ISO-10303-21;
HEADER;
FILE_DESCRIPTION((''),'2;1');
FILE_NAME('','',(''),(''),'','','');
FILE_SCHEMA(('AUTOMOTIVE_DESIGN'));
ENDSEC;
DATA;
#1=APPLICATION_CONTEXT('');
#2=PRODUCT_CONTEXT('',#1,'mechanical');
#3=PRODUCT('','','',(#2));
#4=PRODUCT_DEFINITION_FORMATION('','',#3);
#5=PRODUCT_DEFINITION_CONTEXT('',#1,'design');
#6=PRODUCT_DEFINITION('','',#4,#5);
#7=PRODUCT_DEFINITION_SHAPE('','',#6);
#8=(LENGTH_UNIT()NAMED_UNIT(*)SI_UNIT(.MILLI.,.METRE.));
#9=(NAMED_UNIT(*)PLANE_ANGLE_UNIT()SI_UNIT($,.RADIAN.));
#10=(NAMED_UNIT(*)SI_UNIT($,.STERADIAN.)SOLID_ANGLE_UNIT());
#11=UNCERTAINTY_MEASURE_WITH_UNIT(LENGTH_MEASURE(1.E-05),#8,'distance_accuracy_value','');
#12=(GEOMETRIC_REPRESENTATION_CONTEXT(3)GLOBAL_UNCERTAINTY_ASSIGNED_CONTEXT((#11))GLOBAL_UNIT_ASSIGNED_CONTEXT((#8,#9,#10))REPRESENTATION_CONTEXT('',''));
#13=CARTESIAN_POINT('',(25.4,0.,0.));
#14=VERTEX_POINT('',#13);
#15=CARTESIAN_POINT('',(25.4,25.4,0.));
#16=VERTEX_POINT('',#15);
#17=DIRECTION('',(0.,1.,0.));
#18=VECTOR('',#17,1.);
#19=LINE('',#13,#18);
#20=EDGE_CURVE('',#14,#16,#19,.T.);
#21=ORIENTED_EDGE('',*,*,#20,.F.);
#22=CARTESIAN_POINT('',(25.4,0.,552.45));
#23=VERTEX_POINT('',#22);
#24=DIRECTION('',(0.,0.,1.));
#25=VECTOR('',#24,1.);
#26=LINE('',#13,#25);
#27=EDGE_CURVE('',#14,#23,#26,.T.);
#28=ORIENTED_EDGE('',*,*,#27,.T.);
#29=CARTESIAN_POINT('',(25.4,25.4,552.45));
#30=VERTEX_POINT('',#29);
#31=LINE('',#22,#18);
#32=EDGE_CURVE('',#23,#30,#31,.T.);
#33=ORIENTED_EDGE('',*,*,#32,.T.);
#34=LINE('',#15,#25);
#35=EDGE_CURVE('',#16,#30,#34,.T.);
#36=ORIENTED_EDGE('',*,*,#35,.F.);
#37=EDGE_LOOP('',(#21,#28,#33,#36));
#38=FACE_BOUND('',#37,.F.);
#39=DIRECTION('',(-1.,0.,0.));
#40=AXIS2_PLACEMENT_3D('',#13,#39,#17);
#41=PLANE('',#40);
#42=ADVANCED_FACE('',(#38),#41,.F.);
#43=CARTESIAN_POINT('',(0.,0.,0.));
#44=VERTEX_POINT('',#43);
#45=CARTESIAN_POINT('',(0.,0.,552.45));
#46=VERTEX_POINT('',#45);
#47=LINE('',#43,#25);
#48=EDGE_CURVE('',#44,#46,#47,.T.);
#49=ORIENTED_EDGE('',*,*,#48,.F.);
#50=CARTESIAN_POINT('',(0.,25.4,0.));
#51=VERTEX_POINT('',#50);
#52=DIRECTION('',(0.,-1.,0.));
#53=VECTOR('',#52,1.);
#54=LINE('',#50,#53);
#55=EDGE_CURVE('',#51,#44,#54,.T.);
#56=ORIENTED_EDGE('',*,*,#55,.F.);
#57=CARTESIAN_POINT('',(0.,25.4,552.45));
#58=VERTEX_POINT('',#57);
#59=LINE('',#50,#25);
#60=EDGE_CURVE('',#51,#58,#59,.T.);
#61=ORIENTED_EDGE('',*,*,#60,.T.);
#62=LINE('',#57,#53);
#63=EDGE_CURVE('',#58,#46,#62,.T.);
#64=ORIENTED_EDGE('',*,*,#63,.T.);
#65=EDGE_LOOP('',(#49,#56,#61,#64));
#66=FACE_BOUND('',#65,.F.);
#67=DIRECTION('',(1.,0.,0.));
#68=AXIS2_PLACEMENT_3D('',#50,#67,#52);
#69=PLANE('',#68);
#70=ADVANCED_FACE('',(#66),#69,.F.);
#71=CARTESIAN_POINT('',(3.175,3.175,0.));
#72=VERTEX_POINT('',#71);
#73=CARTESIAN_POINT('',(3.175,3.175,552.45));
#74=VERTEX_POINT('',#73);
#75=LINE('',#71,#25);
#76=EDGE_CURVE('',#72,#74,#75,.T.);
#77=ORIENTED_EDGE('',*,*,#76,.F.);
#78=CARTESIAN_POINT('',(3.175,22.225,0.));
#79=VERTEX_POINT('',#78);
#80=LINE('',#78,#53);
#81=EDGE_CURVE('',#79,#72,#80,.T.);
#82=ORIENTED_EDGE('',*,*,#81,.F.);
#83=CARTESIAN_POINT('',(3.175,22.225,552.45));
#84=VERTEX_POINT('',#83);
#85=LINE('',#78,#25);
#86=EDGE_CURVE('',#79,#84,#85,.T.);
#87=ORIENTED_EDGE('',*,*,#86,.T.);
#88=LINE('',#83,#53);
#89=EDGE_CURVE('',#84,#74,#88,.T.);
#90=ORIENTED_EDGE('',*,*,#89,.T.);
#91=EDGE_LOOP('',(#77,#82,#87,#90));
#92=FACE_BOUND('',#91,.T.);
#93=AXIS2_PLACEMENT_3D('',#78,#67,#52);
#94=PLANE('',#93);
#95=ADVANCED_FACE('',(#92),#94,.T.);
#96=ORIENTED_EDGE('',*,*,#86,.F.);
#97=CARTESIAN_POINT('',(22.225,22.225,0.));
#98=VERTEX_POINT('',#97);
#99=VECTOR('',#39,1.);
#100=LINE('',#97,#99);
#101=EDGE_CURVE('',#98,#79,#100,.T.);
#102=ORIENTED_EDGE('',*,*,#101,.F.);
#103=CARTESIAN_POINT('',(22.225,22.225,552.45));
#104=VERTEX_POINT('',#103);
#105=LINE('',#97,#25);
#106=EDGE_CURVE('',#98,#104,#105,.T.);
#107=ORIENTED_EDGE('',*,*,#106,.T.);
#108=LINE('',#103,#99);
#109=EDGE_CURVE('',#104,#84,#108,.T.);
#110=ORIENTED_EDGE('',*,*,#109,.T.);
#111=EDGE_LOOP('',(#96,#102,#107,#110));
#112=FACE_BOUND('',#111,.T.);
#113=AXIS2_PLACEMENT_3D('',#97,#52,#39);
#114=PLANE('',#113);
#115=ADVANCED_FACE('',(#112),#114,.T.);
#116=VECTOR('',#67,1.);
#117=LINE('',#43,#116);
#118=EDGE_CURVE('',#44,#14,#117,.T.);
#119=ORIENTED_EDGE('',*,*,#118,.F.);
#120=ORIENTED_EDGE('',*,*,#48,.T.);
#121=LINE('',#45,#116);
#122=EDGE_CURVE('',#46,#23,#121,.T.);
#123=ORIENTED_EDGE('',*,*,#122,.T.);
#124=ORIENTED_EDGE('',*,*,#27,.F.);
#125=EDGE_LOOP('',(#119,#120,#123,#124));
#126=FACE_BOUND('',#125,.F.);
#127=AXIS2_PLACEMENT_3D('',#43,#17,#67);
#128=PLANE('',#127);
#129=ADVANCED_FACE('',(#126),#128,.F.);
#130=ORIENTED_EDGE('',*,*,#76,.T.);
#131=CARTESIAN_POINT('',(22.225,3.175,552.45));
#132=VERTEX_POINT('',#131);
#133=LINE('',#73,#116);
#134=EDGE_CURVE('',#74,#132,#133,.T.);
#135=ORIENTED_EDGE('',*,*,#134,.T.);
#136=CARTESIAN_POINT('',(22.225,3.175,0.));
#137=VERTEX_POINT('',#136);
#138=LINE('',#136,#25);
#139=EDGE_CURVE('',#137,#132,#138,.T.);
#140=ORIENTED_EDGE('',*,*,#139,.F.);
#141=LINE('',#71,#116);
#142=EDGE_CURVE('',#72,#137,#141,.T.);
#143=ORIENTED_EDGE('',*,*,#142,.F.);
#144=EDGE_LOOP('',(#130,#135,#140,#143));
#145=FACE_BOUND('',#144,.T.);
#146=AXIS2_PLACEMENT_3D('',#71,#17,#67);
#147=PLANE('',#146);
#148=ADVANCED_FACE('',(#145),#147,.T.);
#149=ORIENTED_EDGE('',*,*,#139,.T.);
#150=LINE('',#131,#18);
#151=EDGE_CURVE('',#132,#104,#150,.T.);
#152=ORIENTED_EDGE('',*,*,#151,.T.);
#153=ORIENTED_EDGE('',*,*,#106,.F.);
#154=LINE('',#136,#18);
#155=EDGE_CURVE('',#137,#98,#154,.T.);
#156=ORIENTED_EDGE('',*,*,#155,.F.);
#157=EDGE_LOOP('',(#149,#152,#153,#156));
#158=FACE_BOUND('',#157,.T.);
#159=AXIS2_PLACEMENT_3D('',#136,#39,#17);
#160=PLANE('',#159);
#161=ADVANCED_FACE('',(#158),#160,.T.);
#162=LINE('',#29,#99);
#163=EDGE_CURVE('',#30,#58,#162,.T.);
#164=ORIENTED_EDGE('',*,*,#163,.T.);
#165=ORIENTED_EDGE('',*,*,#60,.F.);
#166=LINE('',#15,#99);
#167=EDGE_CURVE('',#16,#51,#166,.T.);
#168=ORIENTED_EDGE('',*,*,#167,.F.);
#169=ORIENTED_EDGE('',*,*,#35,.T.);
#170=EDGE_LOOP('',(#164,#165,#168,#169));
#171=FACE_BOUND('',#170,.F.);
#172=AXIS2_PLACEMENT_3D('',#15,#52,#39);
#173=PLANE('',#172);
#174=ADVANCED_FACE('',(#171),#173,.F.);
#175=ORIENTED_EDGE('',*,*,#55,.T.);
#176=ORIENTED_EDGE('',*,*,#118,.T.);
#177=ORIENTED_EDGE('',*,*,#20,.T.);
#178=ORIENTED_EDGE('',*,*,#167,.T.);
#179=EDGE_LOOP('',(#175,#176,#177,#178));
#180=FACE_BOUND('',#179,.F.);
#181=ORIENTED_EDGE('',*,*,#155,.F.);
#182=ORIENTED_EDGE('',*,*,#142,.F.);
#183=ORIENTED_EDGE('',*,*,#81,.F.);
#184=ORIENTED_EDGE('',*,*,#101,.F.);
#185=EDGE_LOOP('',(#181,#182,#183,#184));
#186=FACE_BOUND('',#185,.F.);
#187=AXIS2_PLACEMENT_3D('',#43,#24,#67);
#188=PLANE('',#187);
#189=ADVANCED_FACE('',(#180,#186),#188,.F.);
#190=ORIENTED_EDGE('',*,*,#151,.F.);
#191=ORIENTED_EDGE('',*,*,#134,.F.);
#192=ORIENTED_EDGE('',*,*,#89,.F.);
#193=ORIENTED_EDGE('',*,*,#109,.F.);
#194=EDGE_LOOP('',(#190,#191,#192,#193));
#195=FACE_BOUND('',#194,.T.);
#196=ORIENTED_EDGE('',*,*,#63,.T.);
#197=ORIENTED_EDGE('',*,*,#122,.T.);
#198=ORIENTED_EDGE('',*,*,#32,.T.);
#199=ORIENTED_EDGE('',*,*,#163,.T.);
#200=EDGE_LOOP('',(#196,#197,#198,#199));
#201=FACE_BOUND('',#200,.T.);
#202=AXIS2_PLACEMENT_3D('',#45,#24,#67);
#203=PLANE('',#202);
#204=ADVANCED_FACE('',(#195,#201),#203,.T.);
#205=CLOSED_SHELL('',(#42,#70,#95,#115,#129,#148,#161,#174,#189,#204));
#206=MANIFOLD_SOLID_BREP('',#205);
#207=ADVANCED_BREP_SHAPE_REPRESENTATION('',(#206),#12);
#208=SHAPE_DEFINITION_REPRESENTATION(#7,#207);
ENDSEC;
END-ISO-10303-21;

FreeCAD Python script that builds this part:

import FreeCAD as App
import Part
import Sketcher

V = App.Vector
Q = App.Units.Quantity


def add_polygon(sketch, points):
    """Adds a closed chain of lines whose ends are joined by coincident constraints."""
    first, n = sketch.GeometryCount, len(points)
    for a, b in zip(points, points[1:] + points[:1]):
        sketch.addGeometry(Part.LineSegment(App.Vector(*a, 0), App.Vector(*b, 0)), False)
    for i in range(n):
        sketch.addConstraint(Sketcher.Constraint("Coincident", first + i, 2, first + (i + 1) % n, 1))

doc = App.newDocument("Part")
body = doc.addObject("PartDesign::Body", "Body")

# Sketch on XY plane
sketch1 = doc.addObject("Sketcher::SketchObject", "Sketch")
body.addObject(sketch1)
sketch1.AttachmentSupport = (doc.XY_Plane, [""])
sketch1.MapMode = "FlatFace"
add_polygon(sketch1, [(0, 25), (0, 0), (25, 0), (25, 25)])  # lines 0-3
add_polygon(sketch1, [(22, 3), (3, 3), (3, 22), (22, 22)])  # lines 4-7
sketch1.addConstraint([
    Sketcher.Constraint("Vertical", 0),
    Sketcher.Constraint("Horizontal", 1),
    Sketcher.Constraint("Vertical", 2),
    Sketcher.Constraint("Horizontal", 3),
    Sketcher.Constraint("Horizontal", 4),
    Sketcher.Constraint("Vertical", 5),
    Sketcher.Constraint("Horizontal", 6),
    Sketcher.Constraint("Vertical", 7),
    Sketcher.Constraint("Coincident", 0, 2, -1, 1),
    Sketcher.Constraint("Equal", 3, 0),
    Sketcher.Constraint("Equal", 6, 5),
    Sketcher.Constraint("DistanceX", 1, 1, 1, 2, Q("1 in")),
    Sketcher.Constraint("DistanceX", -1, 1, 4, 2, Q("0.125 in")),
    Sketcher.Constraint("DistanceY", -1, 1, 4, 2, Q("0.125 in")),
    Sketcher.Constraint("DistanceY", 5, 2, 3, 2, Q("0.125 in")),
])
pad1 = doc.addObject("PartDesign::Pad", "Pad")
body.addObject(pad1)
pad1.Profile = sketch1
pad1.Length = Q("21.75 in")

doc.recompute()
